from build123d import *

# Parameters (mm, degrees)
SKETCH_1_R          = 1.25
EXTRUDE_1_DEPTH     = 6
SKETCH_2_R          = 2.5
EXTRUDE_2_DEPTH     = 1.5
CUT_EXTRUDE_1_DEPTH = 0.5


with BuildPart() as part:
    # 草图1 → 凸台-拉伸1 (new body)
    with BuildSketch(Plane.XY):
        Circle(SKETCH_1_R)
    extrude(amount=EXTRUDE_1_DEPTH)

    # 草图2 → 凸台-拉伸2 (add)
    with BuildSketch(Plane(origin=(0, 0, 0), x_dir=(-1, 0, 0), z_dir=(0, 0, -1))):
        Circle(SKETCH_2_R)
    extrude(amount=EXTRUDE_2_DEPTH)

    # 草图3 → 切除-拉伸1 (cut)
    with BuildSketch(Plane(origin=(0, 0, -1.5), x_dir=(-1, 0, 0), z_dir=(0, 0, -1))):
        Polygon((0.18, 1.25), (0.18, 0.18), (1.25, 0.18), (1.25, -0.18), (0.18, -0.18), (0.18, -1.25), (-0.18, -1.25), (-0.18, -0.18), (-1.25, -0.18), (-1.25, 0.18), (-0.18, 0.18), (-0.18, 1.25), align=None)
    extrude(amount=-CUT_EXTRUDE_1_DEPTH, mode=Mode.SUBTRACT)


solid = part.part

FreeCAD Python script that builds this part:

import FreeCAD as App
import Part
import Sketcher

V = App.Vector


def add_polygon(sketch, points):
    """Adds a closed chain of lines whose ends are joined by coincident constraints."""
    first, n = sketch.GeometryCount, len(points)
    for a, b in zip(points, points[1:] + points[:1]):
        sketch.addGeometry(Part.LineSegment(App.Vector(*a, 0), App.Vector(*b, 0)), False)
    for i in range(n):
        sketch.addConstraint(Sketcher.Constraint("Coincident", first + i, 2, first + (i + 1) % n, 1))

doc = App.newDocument("Part")
body = doc.addObject("PartDesign::Body", "Body")

sketch1 = body.newObject("Sketcher::SketchObject", "Sketch")
sketch1.AttachmentSupport = (doc.getObject("XY_Plane"), [""])
sketch1.MapMode = "FlatFace"
sketch1.addGeometry(Part.Circle(V(0, 0, 0), V(0, 0, 1), 1.2), False)
sketch1.addConstraint(Sketcher.Constraint("Coincident", 0, 3, -1, 1))
sketch1.addConstraint(Sketcher.Constraint("Diameter", 0, 2.5))
pad1 = body.newObject("PartDesign::Pad", "Pad")
pad1.Profile = sketch1
pad1.Length = 6

sketch2 = body.newObject("Sketcher::SketchObject", "Sketch001")
sketch2.AttachmentSupport = (doc.getObject("XY_Plane"), [""])
sketch2.MapMode = "FlatFace"
sketch2.addGeometry(Part.Circle(V(0, 0, 0), V(0, 0, 1), 2.5), False)
sketch2.addConstraint(Sketcher.Constraint("Coincident", 0, 3, -1, 1))
sketch2.addConstraint(Sketcher.Constraint("Diameter", 0, 5.0))
pad2 = body.newObject("PartDesign::Pad", "Pad001")
pad2.Profile = sketch2
pad2.Length = 1.5
pad2.Reversed = True

sketch3 = body.newObject("Sketcher::SketchObject", "Sketch002")
sketch3.AttachmentSupport = (doc.getObject("XY_Plane"), [""])
sketch3.MapMode = "FlatFace"
sketch3.AttachmentOffset = App.Placement(V(0, 0, -1.5), App.Rotation())
add_polygon(sketch3, [(-0.18, 0.18), (-0.18, 1.25), (0.18, 1.25), (0.18, 0.18), (1.25, 0.18), (1.25, -0.18), (0.18, -0.18), (0.18, -1.25), (-0.18, -1.25), (-0.18, -0.18), (-1.25, -0.18), (-1.25, 0.18)])
sketch3.addConstraint(Sketcher.Constraint("Vertical", 0))
sketch3.addConstraint(Sketcher.Constraint("Horizontal", 1))
sketch3.addConstraint(Sketcher.Constraint("Vertical", 2))
sketch3.addConstraint(Sketcher.Constraint("Horizontal", 3))
sketch3.addConstraint(Sketcher.Constraint("Vertical", 4))
sketch3.addConstraint(Sketcher.Constraint("Horizontal", 5))
sketch3.addConstraint(Sketcher.Constraint("Vertical", 6))
sketch3.addConstraint(Sketcher.Constraint("Horizontal", 7))
sketch3.addConstraint(Sketcher.Constraint("Vertical", 8))
sketch3.addConstraint(Sketcher.Constraint("Horizontal", 9))
sketch3.addConstraint(Sketcher.Constraint("Vertical", 10))
sketch3.addConstraint(Sketcher.Constraint("Horizontal", 11))
sketch3.addConstraint(Sketcher.Constraint("Symmetric", 0, 2, 6, 2, -1, 1))
sketch3.addConstraint(Sketcher.Constraint("Symmetric", 2, 2, 8, 2, -1, 1))
sketch3.addConstraint(Sketcher.Constraint("Symmetric", 4, 2, 10, 2, -1, 1))
sketch3.addConstraint(Sketcher.Constraint("Symmetric", 5, 2, 8, 2, -2))
sketch3.addConstraint(Sketcher.Constraint("Equal", 11, 0))
sketch3.addConstraint(Sketcher.Constraint("Equal", 7, 4))
sketch3.addConstraint(Sketcher.Constraint("DistanceX", 1, 1, 1, 2, 0.36))
sketch3.addConstraint(Sketcher.Constraint("DistanceX", 3, 1, 3, 2, 1.07))
pocket1 = body.newObject("PartDesign::Pocket", "Pocket")
pocket1.Profile = sketch3
pocket1.Length = 0.5
pocket1.Reversed = True

doc.recompute()
